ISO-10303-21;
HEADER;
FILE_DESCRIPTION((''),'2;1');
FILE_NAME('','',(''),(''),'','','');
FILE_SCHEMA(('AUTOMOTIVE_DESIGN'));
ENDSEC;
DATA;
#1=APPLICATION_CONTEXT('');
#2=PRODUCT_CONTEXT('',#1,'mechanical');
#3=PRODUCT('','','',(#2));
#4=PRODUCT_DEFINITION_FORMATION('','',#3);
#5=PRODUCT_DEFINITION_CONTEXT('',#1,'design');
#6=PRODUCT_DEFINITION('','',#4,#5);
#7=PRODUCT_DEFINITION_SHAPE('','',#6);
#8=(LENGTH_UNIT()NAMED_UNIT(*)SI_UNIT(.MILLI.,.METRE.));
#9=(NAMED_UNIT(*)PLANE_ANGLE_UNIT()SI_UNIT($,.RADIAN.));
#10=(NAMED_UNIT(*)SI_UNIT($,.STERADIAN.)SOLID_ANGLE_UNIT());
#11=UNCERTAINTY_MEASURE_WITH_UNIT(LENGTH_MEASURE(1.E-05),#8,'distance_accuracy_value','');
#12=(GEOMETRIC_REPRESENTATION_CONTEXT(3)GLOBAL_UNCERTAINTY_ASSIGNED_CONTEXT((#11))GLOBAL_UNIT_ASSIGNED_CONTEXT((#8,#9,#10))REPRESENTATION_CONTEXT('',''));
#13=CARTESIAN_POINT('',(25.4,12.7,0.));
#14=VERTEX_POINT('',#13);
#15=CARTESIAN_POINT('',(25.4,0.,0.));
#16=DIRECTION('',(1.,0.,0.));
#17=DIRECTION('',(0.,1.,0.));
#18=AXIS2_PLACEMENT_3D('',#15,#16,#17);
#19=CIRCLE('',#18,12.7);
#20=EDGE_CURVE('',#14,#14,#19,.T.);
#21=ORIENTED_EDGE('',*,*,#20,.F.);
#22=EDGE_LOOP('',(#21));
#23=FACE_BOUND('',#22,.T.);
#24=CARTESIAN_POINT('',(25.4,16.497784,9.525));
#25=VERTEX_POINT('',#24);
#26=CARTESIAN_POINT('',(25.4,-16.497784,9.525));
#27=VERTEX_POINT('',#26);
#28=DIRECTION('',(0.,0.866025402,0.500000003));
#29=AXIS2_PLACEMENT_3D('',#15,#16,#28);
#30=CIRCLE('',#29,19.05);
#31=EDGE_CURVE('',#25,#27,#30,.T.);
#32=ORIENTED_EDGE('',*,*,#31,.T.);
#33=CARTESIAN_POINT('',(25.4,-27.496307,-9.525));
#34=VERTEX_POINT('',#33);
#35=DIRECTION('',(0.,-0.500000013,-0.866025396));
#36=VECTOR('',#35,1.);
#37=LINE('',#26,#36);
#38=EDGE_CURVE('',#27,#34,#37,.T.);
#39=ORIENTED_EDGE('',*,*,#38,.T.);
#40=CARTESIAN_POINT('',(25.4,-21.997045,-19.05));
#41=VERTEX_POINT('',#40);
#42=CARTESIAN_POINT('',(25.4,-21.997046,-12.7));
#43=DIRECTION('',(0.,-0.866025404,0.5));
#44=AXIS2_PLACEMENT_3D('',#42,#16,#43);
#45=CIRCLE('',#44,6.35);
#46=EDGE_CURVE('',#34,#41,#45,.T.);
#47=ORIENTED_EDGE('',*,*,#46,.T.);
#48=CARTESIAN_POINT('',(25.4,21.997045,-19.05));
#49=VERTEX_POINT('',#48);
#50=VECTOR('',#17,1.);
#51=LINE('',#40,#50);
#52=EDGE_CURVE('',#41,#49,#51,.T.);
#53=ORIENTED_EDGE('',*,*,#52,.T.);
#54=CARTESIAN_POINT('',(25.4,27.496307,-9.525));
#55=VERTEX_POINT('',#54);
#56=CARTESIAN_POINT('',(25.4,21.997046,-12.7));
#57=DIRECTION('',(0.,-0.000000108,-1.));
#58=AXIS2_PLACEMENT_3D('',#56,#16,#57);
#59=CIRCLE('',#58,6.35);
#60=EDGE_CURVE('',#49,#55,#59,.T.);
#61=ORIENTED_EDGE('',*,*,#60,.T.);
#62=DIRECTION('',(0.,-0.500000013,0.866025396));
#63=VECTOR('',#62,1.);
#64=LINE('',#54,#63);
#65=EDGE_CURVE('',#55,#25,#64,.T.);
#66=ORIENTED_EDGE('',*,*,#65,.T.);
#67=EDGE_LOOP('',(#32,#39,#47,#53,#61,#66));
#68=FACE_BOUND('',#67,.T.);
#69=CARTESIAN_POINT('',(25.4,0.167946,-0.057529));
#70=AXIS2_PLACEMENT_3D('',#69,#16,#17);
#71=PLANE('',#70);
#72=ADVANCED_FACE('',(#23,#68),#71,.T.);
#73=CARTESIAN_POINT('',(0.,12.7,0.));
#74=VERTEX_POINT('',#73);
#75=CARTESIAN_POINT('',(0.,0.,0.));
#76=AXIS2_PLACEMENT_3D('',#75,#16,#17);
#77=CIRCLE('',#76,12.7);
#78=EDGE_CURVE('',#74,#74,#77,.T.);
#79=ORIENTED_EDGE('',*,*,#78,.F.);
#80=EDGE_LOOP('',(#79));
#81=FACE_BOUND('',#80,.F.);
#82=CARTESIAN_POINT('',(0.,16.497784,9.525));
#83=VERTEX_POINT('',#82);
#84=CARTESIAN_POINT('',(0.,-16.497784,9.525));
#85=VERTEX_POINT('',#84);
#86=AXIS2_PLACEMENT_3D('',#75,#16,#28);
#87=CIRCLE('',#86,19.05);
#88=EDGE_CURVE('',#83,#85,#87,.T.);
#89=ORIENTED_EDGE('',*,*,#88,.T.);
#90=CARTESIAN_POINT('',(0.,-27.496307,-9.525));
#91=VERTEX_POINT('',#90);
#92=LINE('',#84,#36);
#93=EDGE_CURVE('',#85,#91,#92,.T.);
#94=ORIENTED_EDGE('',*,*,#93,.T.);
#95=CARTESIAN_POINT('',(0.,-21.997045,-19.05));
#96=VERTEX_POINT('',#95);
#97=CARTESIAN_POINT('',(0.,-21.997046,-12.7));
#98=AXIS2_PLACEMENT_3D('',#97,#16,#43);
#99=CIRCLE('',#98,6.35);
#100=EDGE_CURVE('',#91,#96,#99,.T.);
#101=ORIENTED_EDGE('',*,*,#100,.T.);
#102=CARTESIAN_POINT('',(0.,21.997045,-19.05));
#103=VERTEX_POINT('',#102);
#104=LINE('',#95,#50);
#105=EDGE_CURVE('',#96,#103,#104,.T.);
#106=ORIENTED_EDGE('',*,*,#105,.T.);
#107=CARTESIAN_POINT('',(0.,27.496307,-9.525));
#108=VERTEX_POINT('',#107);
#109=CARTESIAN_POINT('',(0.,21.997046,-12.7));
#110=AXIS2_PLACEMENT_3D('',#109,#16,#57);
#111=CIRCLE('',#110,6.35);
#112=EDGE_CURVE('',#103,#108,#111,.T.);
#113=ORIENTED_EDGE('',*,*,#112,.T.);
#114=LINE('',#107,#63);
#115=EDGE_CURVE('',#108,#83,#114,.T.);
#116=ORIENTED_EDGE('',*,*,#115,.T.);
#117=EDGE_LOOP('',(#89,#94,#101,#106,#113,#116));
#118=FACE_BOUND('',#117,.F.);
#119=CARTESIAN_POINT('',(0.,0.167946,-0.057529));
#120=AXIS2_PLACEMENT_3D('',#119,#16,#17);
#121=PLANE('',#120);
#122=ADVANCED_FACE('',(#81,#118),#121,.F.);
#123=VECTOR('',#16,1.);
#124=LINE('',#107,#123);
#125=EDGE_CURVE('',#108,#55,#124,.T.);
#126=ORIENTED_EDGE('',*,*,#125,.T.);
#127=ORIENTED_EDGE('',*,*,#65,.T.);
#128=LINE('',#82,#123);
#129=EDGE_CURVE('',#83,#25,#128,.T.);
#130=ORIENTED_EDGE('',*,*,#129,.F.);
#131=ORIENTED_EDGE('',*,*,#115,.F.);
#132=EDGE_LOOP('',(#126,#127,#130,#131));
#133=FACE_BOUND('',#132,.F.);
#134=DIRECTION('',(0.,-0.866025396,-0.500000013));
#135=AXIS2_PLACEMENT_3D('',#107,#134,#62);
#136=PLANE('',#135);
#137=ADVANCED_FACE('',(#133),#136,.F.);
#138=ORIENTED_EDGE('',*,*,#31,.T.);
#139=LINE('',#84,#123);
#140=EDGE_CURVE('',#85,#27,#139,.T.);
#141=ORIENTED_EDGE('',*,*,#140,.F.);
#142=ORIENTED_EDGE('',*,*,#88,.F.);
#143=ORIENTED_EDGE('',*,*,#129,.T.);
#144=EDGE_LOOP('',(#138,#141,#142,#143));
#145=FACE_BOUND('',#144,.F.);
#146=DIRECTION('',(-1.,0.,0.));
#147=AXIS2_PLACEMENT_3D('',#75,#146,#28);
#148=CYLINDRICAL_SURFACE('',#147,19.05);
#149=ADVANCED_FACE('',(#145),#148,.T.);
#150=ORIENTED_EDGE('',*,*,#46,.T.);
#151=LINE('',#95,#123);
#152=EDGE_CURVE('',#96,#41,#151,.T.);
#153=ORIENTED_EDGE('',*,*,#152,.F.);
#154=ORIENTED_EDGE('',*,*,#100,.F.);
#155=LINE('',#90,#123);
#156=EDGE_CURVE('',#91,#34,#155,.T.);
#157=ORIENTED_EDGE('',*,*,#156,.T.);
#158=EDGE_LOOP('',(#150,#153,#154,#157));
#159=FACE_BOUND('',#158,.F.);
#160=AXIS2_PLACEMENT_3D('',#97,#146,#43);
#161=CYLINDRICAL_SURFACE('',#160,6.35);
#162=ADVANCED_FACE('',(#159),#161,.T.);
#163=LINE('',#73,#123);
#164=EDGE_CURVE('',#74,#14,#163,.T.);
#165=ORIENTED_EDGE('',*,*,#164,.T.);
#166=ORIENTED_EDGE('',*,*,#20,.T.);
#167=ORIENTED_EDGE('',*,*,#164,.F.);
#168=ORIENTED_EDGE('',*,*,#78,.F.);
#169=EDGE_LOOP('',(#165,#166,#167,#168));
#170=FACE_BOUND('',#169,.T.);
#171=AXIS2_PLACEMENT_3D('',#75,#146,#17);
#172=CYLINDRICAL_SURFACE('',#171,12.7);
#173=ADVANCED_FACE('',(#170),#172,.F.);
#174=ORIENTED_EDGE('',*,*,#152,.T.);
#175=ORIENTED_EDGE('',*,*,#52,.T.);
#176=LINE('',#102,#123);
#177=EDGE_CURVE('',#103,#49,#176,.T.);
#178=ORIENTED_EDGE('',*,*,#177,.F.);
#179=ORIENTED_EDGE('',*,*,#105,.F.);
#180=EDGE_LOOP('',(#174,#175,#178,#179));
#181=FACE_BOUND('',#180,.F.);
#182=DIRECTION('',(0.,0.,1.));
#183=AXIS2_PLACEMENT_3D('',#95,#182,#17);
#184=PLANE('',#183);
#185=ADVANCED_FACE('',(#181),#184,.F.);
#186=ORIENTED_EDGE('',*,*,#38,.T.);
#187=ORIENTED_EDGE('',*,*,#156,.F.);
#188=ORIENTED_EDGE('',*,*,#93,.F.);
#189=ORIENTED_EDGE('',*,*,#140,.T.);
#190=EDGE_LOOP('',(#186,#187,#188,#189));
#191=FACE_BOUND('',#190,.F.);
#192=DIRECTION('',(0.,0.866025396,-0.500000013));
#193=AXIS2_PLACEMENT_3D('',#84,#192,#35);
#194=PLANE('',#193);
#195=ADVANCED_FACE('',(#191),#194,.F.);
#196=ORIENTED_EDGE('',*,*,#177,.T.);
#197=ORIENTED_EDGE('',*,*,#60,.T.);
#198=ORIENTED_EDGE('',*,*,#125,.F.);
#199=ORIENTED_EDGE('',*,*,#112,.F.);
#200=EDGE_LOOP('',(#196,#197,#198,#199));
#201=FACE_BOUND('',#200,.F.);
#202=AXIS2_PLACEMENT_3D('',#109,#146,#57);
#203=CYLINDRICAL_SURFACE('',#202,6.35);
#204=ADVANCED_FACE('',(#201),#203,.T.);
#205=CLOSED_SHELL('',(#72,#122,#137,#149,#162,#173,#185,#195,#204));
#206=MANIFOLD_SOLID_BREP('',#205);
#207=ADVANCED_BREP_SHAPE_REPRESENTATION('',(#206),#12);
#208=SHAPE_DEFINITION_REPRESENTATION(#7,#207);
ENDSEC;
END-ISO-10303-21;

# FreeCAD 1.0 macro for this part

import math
import FreeCAD as App
import Part
import Sketcher

V = App.Vector
Q = App.Units.Quantity

doc = App.newDocument("Part")
params = doc.addObject("Spreadsheet::Sheet", "Params")
for row, (alias, value) in enumerate([
    ("sketch1_diameter", "1 in"),
    ("sketch1_radius", "0.25 in"),
    ("sketch1_radius2", "0.75 in"),
    ("pad1_length", "1 in"),
], start=1):
    params.set(f"A{row}", alias)
    params.set(f"B{row}", "=" + value)
    params.setAlias(f"B{row}", alias)

body = doc.addObject("PartDesign::Body", "Body")

sketch1 = doc.addObject("Sketcher::SketchObject", "Sketch")
body.addObject(sketch1)
sketch1.AttachmentSupport = (doc.YZ_Plane, [""])
sketch1.MapMode = "FlatFace"
sketch1.addGeometry([
    Part.ArcOfCircle(Part.Circle(V(22, -13, 0), V(0, 0, 1), 6), math.radians(-90), math.radians(30)),
    Part.LineSegment(V(27, -10, 0), V(16, 10, 0)),
    Part.ArcOfCircle(Part.Circle(V(0, 0, 0), V(0, 0, 1), 19), math.radians(30), math.radians(150)),
    Part.LineSegment(V(-16, 10, 0), V(-27, -10, 0)),
    Part.ArcOfCircle(Part.Circle(V(-22, -13, 0), V(0, 0, 1), 6), math.radians(150), math.radians(270)),
    Part.LineSegment(V(-22, -19, 0), V(22, -19, 0)),
    Part.Circle(V(0, 0, 0), V(0, 0, 1), 13),
], False)
sketch1.addConstraint([
    Sketcher.Constraint("Tangent", 0, 2, 1, 1),
    Sketcher.Constraint("Tangent", 1, 2, 2, 1),
    Sketcher.Constraint("Tangent", 2, 2, 3, 1),
    Sketcher.Constraint("Tangent", 3, 2, 4, 1),
    Sketcher.Constraint("Tangent", 4, 2, 5, 1),
    Sketcher.Constraint("Tangent", 5, 2, 0, 1),
    Sketcher.Constraint("Horizontal", 5),
    Sketcher.Constraint("Coincident", 2, 3, -1, 1),
    Sketcher.Constraint("Coincident", 6, 3, -1, 1),
    Sketcher.Constraint("Equal", 0, 4),
    Sketcher.Constraint("Horizontal", 1, 2, 2, 2),
    Sketcher.Constraint("Diameter", 6, Q("1 in")),
    Sketcher.Constraint("Radius", 0, Q("0.25 in")),
    Sketcher.Constraint("Radius", 2, Q("0.75 in")),
    Sketcher.Constraint("Angle", 1, Q("120.000001 deg")),
    Sketcher.Constraint("DistanceY", 0, 3, -1, 1, Q("0.5 in")),
])
sketch1.setExpression("Constraints[11]", "Params.sketch1_diameter")
sketch1.setExpression("Constraints[12]", "Params.sketch1_radius")
sketch1.setExpression("Constraints[13]", "Params.sketch1_radius2")
pad1 = doc.addObject("PartDesign::Pad", "Pad")
body.addObject(pad1)
pad1.Profile = sketch1
pad1.setExpression("Length", "Params.pad1_length")

doc.recompute()
